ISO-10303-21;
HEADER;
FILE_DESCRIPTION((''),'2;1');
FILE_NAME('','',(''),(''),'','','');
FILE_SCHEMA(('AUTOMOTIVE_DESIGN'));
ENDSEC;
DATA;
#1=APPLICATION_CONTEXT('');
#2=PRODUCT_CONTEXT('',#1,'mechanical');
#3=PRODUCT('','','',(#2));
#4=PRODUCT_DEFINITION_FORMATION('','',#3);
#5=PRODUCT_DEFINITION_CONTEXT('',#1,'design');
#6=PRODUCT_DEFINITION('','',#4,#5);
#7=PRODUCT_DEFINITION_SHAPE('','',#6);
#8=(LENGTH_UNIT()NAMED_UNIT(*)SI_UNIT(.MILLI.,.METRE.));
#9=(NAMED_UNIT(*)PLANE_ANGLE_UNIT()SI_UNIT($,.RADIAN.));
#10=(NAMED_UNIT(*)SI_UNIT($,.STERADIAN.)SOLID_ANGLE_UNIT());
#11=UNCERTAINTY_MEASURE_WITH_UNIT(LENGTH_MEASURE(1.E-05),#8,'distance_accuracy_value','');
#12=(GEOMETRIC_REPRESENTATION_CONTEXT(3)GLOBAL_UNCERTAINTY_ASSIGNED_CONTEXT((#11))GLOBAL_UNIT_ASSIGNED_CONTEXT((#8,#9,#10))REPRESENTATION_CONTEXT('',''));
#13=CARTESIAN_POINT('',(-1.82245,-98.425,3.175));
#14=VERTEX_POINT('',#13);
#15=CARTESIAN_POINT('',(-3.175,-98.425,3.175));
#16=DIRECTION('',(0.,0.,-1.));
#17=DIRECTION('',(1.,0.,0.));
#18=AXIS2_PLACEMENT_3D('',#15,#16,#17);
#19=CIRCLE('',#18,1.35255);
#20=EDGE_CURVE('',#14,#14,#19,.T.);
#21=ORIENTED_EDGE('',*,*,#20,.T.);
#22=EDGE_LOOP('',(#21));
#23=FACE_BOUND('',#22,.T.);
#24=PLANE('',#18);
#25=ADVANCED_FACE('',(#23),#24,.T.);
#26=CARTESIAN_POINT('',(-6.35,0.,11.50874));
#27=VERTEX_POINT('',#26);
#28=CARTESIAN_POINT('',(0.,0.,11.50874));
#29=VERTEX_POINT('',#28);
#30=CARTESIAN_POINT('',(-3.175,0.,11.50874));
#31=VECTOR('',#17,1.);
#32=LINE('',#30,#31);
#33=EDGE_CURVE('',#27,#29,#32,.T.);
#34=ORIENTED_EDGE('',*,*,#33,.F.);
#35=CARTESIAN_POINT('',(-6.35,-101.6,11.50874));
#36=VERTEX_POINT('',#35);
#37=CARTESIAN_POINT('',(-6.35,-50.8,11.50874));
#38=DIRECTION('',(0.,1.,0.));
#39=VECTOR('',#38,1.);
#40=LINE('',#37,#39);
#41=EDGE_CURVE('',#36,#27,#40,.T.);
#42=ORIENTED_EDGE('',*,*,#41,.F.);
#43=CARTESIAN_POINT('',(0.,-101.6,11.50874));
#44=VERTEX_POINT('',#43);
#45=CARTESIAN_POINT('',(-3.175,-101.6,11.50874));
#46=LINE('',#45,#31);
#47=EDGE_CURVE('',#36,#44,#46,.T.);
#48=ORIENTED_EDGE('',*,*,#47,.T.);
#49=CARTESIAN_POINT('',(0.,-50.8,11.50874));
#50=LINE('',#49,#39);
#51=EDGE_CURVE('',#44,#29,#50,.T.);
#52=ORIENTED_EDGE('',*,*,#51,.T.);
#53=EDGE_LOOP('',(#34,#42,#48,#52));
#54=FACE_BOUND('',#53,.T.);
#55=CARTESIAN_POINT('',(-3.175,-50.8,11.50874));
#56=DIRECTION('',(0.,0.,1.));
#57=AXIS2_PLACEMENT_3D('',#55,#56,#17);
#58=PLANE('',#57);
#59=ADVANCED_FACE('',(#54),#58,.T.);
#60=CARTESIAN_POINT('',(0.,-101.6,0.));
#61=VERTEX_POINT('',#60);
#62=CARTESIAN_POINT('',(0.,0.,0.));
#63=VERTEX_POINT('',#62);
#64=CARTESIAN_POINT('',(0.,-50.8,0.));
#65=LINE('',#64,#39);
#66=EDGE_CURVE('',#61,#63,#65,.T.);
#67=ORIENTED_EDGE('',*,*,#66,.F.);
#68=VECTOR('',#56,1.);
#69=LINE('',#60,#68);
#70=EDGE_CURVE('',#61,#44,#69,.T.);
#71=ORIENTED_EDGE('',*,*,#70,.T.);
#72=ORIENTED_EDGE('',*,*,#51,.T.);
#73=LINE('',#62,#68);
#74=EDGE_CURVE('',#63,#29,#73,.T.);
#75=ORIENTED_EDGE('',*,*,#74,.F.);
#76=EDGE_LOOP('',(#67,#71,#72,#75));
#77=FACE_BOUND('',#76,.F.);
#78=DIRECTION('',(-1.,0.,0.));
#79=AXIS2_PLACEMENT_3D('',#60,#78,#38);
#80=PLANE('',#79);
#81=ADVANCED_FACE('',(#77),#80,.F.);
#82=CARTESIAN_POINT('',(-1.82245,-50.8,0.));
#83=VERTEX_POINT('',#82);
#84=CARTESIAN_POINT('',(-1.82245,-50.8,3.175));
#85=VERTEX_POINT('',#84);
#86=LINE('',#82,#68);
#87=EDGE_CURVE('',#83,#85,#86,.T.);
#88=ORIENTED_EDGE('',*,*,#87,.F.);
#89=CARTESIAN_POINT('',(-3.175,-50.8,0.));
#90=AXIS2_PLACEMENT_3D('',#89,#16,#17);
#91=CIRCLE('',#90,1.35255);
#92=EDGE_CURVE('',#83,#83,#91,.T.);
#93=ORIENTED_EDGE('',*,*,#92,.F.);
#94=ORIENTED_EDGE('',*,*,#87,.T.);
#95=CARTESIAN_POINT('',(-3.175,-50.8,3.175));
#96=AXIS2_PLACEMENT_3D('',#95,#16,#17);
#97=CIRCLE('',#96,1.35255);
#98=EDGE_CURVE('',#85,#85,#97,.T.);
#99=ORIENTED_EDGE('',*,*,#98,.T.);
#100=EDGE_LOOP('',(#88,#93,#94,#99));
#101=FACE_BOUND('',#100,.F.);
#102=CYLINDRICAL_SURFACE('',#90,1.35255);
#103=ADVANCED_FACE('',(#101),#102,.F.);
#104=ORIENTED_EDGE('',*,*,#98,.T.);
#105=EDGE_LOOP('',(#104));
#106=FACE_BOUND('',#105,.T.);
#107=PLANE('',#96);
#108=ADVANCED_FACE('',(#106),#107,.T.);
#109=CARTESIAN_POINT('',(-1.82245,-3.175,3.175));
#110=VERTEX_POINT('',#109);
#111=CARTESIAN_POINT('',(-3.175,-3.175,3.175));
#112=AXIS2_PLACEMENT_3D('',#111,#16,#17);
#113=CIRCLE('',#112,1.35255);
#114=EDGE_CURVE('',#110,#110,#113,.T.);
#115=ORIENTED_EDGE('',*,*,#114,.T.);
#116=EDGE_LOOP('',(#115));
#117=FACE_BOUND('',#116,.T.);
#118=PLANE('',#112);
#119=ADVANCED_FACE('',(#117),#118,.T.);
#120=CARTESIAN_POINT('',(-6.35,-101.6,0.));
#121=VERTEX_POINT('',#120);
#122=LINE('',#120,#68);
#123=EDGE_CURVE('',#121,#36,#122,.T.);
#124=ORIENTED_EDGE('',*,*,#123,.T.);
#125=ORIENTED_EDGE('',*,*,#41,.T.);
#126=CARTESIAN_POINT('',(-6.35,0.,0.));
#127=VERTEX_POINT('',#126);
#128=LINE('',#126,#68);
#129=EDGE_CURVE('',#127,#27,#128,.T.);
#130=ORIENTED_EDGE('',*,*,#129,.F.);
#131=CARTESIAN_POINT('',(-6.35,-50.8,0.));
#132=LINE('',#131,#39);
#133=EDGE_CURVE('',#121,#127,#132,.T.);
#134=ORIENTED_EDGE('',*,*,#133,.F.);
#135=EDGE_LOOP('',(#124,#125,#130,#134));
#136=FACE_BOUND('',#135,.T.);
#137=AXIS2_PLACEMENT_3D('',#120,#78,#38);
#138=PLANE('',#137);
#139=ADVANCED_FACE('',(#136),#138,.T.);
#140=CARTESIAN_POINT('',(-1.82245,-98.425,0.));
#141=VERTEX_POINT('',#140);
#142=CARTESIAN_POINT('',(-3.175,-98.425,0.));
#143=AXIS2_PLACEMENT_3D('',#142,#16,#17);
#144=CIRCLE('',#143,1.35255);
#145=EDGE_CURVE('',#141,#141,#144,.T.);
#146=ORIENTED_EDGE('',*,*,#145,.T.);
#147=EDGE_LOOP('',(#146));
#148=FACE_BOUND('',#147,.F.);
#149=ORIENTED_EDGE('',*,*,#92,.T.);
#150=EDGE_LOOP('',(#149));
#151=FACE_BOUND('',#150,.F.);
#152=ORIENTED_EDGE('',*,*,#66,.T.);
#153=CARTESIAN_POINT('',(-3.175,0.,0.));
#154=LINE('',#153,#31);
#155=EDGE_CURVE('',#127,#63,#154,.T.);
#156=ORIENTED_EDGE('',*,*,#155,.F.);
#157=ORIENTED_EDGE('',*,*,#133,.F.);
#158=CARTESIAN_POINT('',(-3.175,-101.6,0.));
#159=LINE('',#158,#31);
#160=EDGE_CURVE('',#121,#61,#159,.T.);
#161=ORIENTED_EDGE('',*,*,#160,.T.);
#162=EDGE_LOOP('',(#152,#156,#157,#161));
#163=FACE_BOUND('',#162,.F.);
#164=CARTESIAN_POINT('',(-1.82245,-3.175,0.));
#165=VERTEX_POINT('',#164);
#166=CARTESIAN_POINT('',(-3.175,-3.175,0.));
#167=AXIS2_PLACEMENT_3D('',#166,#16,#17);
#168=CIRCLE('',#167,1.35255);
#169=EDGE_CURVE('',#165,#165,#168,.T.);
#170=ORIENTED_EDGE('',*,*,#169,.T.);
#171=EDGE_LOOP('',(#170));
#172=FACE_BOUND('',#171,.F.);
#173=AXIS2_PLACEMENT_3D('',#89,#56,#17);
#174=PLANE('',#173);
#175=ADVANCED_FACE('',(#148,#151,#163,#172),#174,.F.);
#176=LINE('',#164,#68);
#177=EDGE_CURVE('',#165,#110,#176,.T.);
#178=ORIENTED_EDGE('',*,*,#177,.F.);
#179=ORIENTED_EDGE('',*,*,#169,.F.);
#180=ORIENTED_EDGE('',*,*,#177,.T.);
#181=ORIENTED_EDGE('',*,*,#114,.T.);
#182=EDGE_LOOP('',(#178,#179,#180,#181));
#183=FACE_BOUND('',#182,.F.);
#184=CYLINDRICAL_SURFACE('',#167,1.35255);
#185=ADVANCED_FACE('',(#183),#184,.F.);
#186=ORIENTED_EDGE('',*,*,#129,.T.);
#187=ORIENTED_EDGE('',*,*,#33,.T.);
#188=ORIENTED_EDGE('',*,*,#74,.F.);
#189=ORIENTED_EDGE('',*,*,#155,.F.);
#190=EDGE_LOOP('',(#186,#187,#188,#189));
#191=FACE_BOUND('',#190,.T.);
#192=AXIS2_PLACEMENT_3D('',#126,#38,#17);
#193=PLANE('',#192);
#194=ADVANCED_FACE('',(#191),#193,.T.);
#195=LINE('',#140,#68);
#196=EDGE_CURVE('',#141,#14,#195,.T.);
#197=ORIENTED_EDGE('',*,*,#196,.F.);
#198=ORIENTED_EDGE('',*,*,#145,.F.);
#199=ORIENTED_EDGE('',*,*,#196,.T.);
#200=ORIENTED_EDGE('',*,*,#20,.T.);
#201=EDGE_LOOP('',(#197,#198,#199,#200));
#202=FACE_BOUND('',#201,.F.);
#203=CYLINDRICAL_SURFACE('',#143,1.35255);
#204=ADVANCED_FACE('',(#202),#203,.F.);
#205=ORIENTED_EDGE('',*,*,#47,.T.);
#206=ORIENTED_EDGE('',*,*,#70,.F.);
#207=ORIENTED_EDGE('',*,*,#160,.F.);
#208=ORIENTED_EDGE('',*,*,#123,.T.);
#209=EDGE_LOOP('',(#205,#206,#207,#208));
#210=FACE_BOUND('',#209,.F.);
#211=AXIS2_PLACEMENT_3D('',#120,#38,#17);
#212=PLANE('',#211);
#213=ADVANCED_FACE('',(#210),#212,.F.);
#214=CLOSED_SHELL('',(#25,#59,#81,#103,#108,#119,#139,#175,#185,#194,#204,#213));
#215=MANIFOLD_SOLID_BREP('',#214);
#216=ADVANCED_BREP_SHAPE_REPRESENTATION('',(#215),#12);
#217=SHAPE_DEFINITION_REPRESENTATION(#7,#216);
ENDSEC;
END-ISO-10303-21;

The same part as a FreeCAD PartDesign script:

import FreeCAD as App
import Part
import Sketcher

V = App.Vector
Q = App.Units.Quantity


def add_polygon(sketch, points):
    """Adds a closed chain of lines whose ends are joined by coincident constraints."""
    first, n = sketch.GeometryCount, len(points)
    for a, b in zip(points, points[1:] + points[:1]):
        sketch.addGeometry(Part.LineSegment(App.Vector(*a, 0), App.Vector(*b, 0)), False)
    for i in range(n):
        sketch.addConstraint(Sketcher.Constraint("Coincident", first + i, 2, first + (i + 1) % n, 1))

doc = App.newDocument("Part")
params = doc.addObject("Spreadsheet::Sheet", "Params")
for row, (alias, value) in enumerate([
    ("sketch1_height", "4 in"),
    ("sketch1_width", "0.25 in"),
    ("pad1_length", "0.4531 in"),
    ("pocket1_length", "0.125 in"),
], start=1):
    params.set(f"A{row}", alias)
    params.set(f"B{row}", "=" + value)
    params.setAlias(f"B{row}", alias)

body = doc.addObject("PartDesign::Body", "Body")

# Sketch on XY plane
sketch1 = body.newObject("Sketcher::SketchObject", "Sketch")
sketch1.AttachmentSupport = (doc.getObject("XY_Plane"), [""])
sketch1.MapMode = "FlatFace"
add_polygon(sketch1, [(-6, 0), (-6, -102), (0, -102), (0, 0)])  # lines 0-3
sketch1.addConstraint([
    Sketcher.Constraint("Vertical", 0),
    Sketcher.Constraint("Horizontal", 1),
    Sketcher.Constraint("Vertical", 2),
    Sketcher.Constraint("Horizontal", 3),
    Sketcher.Constraint("Coincident", 2, 2, -1, 1),
    Sketcher.Constraint("DistanceY", 0, 2, 0, 1, Q("4 in")),
    Sketcher.Constraint("DistanceX", 1, 1, 1, 2, Q("0.25 in")),
])
sketch1.setExpression("Constraints[9]", "Params.sketch1_height")
sketch1.setExpression("Constraints[10]", "Params.sketch1_width")
pad1 = body.newObject("PartDesign::Pad", "Pad")
pad1.Profile = sketch1
pad1.setExpression("Length", "Params.pad1_length")

# Sketch on XY plane
sketch2 = body.newObject("Sketcher::SketchObject", "Sketch001")
sketch2.AttachmentSupport = (doc.getObject("XY_Plane"), [""])
sketch2.MapMode = "FlatFace"
sketch2.addGeometry([
    Part.Circle(V(-3.2, -98.4, 0), V(0, 0, 1), 1.4),
    Part.Circle(V(-3.2, -50.8, 0), V(0, 0, 1), 1.4),
    Part.Circle(V(-3.2, -3.2, 0), V(0, 0, 1), 1.4),
], False)
sketch2.addConstraint([
    Sketcher.Constraint("Equal", 0, 1),
    Sketcher.Constraint("Equal", 1, 2),
    Sketcher.Constraint("Vertical", 0, 3, 1, 3),
    Sketcher.Constraint("Vertical", 1, 3, 2, 3),
    Sketcher.Constraint("DistanceY", 1, 3, -1, 1, Q("2 in")),
    Sketcher.Constraint("Diameter", 0, Q("0.1065 in")),
    Sketcher.Constraint("DistanceY", 0, 3, 2, 3, Q("3.75 in")),
    Sketcher.Constraint("DistanceX", 0, 3, -1, 1, Q("0.125 in")),
    Sketcher.Constraint("DistanceY", 0, 3, -1, 1, Q("3.875 in")),
])
pocket1 = body.newObject("PartDesign::Pocket", "Pocket")
pocket1.Profile = sketch2
pocket1.setExpression("Length", "Params.pocket1_length")
pocket1.Reversed = True

doc.recompute()
